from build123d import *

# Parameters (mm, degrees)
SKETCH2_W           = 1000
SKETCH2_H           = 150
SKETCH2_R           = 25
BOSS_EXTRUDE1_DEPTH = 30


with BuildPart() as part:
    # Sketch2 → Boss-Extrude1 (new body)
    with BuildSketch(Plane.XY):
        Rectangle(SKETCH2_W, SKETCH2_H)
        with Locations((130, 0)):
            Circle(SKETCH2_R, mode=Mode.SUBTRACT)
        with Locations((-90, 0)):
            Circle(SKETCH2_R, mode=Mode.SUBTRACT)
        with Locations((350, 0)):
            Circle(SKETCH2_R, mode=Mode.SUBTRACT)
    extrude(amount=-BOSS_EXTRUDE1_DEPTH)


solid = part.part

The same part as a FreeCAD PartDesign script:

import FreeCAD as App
import Part
import Sketcher

V = App.Vector
Q = App.Units.Quantity


def add_polygon(sketch, points):
    """Adds a closed chain of lines whose ends are joined by coincident constraints."""
    first, n = sketch.GeometryCount, len(points)
    for a, b in zip(points, points[1:] + points[:1]):
        sketch.addGeometry(Part.LineSegment(App.Vector(*a, 0), App.Vector(*b, 0)), False)
    for i in range(n):
        sketch.addConstraint(Sketcher.Constraint("Coincident", first + i, 2, first + (i + 1) % n, 1))

doc = App.newDocument("Part")
params = doc.addObject("Spreadsheet::Sheet", "Params")
for row, (alias, value) in enumerate([
    ("sketch1_diameter", "50 mm"),
    ("sketch1_width", "1000 mm"),
    ("sketch1_height", "150 mm"),
    ("pad1_length", "30 mm"),
], start=1):
    params.set(f"A{row}", alias)
    params.set(f"B{row}", "=" + value)
    params.setAlias(f"B{row}", alias)

body = doc.addObject("PartDesign::Body", "Body")

sketch1 = doc.addObject("Sketcher::SketchObject", "Sketch")
body.addObject(sketch1)
sketch1.AttachmentSupport = (doc.XY_Plane, [""])
sketch1.MapMode = "FlatFace"
add_polygon(sketch1, [(-500, 75), (-500, -75), (500, -75), (500, 75)])
sketch1.addGeometry(Part.Circle(V(-90, 0, 0), V(0, 0, 1), 25), False)
sketch1.addGeometry(Part.Circle(V(130, 0, 0), V(0, 0, 1), 25), False)
sketch1.addGeometry(Part.Circle(V(350, 0, 0), V(0, 0, 1), 25), False)
sketch1.addConstraint(Sketcher.Constraint("Vertical", 0))
sketch1.addConstraint(Sketcher.Constraint("Horizontal", 1))
sketch1.addConstraint(Sketcher.Constraint("Vertical", 2))
sketch1.addConstraint(Sketcher.Constraint("Horizontal", 3))
sketch1.addConstraint(Sketcher.Constraint("Equal", 4, 5))
sketch1.addConstraint(Sketcher.Constraint("Equal", 5, 6))
sketch1.addConstraint(Sketcher.Constraint("Symmetric", 0, 2, 2, 2, -1, 1))
sketch1.addConstraint(Sketcher.Constraint("PointOnObject", 4, 3, -1))
sketch1.addConstraint(Sketcher.Constraint("PointOnObject", 5, 3, -1))
sketch1.addConstraint(Sketcher.Constraint("PointOnObject", 6, 3, -1))
sketch1.addConstraint(Sketcher.Constraint("Diameter", 4, Q("50 mm")))
sketch1.addConstraint(Sketcher.Constraint("DistanceX", 1, 1, 1, 2, Q("1000 mm")))
sketch1.addConstraint(Sketcher.Constraint("DistanceY", 0, 2, 0, 1, Q("150 mm")))
sketch1.addConstraint(Sketcher.Constraint("DistanceX", 4, 3, -1, 1, Q("90 mm")))
sketch1.addConstraint(Sketcher.Constraint("DistanceX", -1, 1, 5, 3, Q("130 mm")))
sketch1.addConstraint(Sketcher.Constraint("DistanceX", -1, 1, 6, 3, Q("350 mm")))
sketch1.setExpression("Constraints[14]", "Params.sketch1_diameter")
sketch1.setExpression("Constraints[15]", "Params.sketch1_width")
sketch1.setExpression("Constraints[16]", "Params.sketch1_height")
pad1 = doc.addObject("PartDesign::Pad", "Pad")
body.addObject(pad1)
pad1.Profile = sketch1
pad1.setExpression("Length", "Params.pad1_length")
pad1.Reversed = True

doc.recompute()
